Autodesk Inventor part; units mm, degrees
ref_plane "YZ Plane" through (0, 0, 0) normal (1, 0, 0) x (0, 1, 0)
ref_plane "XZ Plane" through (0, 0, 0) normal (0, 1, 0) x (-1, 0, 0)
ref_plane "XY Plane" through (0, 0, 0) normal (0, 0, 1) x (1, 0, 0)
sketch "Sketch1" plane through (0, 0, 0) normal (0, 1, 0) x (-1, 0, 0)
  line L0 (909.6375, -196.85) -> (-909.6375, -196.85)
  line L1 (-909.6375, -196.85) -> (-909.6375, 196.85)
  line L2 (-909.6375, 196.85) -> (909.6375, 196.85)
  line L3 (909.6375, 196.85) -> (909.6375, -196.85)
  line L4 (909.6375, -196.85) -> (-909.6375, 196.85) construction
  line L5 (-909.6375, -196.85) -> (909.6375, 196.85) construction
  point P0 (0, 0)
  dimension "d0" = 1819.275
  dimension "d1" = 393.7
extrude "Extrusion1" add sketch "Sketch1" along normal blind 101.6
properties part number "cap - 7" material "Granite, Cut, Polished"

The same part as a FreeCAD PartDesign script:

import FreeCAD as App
import Part
import Sketcher
Q = App.Units.Quantity


def add_polygon(sketch, points):
    """Adds a closed chain of lines whose ends are joined by coincident constraints."""
    first, n = sketch.GeometryCount, len(points)
    for a, b in zip(points, points[1:] + points[:1]):
        sketch.addGeometry(Part.LineSegment(App.Vector(*a, 0), App.Vector(*b, 0)), False)
    for i in range(n):
        sketch.addConstraint(Sketcher.Constraint("Coincident", first + i, 2, first + (i + 1) % n, 1))

doc = App.newDocument("Part")
params = doc.addObject("Spreadsheet::Sheet", "Params")
for row, (alias, value) in enumerate([
    ("sketch1_height", "15.5 in"),
    ("sketch1_width", "71.625 in"),
    ("pad1_length", "4 in"),
], start=1):
    params.set(f"A{row}", alias)
    params.set(f"B{row}", "=" + value)
    params.setAlias(f"B{row}", alias)

body = doc.addObject("PartDesign::Body", "Body")

# Sketch on XZ plane
sketch1 = body.newObject("Sketcher::SketchObject", "Sketch")
sketch1.AttachmentSupport = (doc.getObject("XZ_Plane"), [""])
sketch1.MapMode = "FlatFace"
add_polygon(sketch1, [(910, -197), (-910, -197), (-910, 197), (910, 197)])  # lines 0-3
sketch1.addConstraint([
    Sketcher.Constraint("Horizontal", 0),
    Sketcher.Constraint("Vertical", 1),
    Sketcher.Constraint("Horizontal", 2),
    Sketcher.Constraint("Vertical", 3),
    Sketcher.Constraint("Symmetric", 0, 2, 2, 2, -1, 1),
    Sketcher.Constraint("DistanceY", 1, 1, 1, 2, Q("15.5 in")),
    Sketcher.Constraint("DistanceX", 0, 2, 0, 1, Q("71.625 in")),
])
sketch1.setExpression("Constraints[9]", "Params.sketch1_height")
sketch1.setExpression("Constraints[10]", "Params.sketch1_width")
pad1 = body.newObject("PartDesign::Pad", "Pad")
pad1.Profile = sketch1
pad1.setExpression("Length", "Params.pad1_length")
pad1.Reversed = True

doc.recompute()
